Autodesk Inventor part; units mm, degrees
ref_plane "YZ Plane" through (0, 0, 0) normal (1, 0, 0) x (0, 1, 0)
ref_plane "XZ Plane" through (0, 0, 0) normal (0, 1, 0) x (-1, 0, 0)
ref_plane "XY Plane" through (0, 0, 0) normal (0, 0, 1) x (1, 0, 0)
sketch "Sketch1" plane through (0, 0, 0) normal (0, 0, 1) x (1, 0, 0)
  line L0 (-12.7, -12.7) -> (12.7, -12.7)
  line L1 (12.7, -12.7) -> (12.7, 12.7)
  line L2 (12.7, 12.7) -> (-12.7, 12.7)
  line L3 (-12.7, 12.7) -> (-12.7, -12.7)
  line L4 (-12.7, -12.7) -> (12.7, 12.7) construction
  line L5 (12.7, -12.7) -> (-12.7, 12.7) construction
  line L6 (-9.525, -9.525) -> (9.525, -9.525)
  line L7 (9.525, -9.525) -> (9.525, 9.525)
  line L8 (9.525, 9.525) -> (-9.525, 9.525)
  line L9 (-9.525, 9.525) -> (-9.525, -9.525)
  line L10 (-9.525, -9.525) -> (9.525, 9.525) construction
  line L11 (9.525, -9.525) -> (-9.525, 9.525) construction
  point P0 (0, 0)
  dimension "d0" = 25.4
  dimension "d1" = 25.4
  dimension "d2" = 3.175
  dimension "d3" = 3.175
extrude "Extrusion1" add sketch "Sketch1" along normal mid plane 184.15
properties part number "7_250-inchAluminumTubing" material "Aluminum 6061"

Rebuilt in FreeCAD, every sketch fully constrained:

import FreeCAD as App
import Part
import Sketcher
Q = App.Units.Quantity

doc = App.newDocument("Part")
params = doc.addObject("Spreadsheet::Sheet", "Params")
for row, (alias, value) in enumerate([
    ("sketch1_width", "1 in"),
    ("pad1_length", "7.25 in"),
], start=1):
    params.set(f"A{row}", alias)
    params.set(f"B{row}", "=" + value)
    params.setAlias(f"B{row}", alias)

body = doc.addObject("PartDesign::Body", "Body")

sketch1 = body.newObject("Sketcher::SketchObject", "Sketch")
sketch1.AttachmentSupport = (doc.getObject("XY_Plane"), [""])
sketch1.MapMode = "FlatFace"
sketch1.addGeometry([
    Part.LineSegment(App.Vector(-13, 13, 0), App.Vector(-13, -13, 0)),
    Part.LineSegment(App.Vector(-13, -13, 0), App.Vector(13, -13, 0)),
    Part.LineSegment(App.Vector(13, -13, 0), App.Vector(13, 13, 0)),
    Part.LineSegment(App.Vector(13, 13, 0), App.Vector(-13, 13, 0)),
    Part.LineSegment(App.Vector(10, -10, 0), App.Vector(-10, -10, 0)),
    Part.LineSegment(App.Vector(-10, -10, 0), App.Vector(-10, 10, 0)),
    Part.LineSegment(App.Vector(-10, 10, 0), App.Vector(10, 10, 0)),
    Part.LineSegment(App.Vector(10, 10, 0), App.Vector(10, -10, 0)),
], False)
sketch1.addConstraint([
    Sketcher.Constraint("Coincident", 0, 2, 1, 1),
    Sketcher.Constraint("Coincident", 1, 2, 2, 1),
    Sketcher.Constraint("Coincident", 2, 2, 3, 1),
    Sketcher.Constraint("Coincident", 3, 2, 0, 1),
    Sketcher.Constraint("Coincident", 4, 2, 5, 1),
    Sketcher.Constraint("Coincident", 5, 2, 6, 1),
    Sketcher.Constraint("Coincident", 6, 2, 7, 1),
    Sketcher.Constraint("Coincident", 7, 2, 4, 1),
    Sketcher.Constraint("Vertical", 0),
    Sketcher.Constraint("Horizontal", 1),
    Sketcher.Constraint("Vertical", 2),
    Sketcher.Constraint("Horizontal", 3),
    Sketcher.Constraint("Horizontal", 4),
    Sketcher.Constraint("Vertical", 5),
    Sketcher.Constraint("Horizontal", 6),
    Sketcher.Constraint("Vertical", 7),
    Sketcher.Constraint("Symmetric", 0, 2, 2, 2, -1, 1),
    Sketcher.Constraint("Symmetric", 4, 2, 6, 2, -1, 1),
    Sketcher.Constraint("Equal", 3, 0),
    Sketcher.Constraint("Equal", 6, 5),
    Sketcher.Constraint("DistanceX", 1, 1, 1, 2, Q("1 in")),
    Sketcher.Constraint("DistanceX", 0, 2, 4, 2, Q("0.125 in")),
])
sketch1.setExpression("Constraints[20]", "Params.sketch1_width")
pad1 = body.newObject("PartDesign::Pad", "Pad")
pad1.Profile = sketch1
pad1.setExpression("Length", "Params.pad1_length")
pad1.Midplane = True

doc.recompute()
